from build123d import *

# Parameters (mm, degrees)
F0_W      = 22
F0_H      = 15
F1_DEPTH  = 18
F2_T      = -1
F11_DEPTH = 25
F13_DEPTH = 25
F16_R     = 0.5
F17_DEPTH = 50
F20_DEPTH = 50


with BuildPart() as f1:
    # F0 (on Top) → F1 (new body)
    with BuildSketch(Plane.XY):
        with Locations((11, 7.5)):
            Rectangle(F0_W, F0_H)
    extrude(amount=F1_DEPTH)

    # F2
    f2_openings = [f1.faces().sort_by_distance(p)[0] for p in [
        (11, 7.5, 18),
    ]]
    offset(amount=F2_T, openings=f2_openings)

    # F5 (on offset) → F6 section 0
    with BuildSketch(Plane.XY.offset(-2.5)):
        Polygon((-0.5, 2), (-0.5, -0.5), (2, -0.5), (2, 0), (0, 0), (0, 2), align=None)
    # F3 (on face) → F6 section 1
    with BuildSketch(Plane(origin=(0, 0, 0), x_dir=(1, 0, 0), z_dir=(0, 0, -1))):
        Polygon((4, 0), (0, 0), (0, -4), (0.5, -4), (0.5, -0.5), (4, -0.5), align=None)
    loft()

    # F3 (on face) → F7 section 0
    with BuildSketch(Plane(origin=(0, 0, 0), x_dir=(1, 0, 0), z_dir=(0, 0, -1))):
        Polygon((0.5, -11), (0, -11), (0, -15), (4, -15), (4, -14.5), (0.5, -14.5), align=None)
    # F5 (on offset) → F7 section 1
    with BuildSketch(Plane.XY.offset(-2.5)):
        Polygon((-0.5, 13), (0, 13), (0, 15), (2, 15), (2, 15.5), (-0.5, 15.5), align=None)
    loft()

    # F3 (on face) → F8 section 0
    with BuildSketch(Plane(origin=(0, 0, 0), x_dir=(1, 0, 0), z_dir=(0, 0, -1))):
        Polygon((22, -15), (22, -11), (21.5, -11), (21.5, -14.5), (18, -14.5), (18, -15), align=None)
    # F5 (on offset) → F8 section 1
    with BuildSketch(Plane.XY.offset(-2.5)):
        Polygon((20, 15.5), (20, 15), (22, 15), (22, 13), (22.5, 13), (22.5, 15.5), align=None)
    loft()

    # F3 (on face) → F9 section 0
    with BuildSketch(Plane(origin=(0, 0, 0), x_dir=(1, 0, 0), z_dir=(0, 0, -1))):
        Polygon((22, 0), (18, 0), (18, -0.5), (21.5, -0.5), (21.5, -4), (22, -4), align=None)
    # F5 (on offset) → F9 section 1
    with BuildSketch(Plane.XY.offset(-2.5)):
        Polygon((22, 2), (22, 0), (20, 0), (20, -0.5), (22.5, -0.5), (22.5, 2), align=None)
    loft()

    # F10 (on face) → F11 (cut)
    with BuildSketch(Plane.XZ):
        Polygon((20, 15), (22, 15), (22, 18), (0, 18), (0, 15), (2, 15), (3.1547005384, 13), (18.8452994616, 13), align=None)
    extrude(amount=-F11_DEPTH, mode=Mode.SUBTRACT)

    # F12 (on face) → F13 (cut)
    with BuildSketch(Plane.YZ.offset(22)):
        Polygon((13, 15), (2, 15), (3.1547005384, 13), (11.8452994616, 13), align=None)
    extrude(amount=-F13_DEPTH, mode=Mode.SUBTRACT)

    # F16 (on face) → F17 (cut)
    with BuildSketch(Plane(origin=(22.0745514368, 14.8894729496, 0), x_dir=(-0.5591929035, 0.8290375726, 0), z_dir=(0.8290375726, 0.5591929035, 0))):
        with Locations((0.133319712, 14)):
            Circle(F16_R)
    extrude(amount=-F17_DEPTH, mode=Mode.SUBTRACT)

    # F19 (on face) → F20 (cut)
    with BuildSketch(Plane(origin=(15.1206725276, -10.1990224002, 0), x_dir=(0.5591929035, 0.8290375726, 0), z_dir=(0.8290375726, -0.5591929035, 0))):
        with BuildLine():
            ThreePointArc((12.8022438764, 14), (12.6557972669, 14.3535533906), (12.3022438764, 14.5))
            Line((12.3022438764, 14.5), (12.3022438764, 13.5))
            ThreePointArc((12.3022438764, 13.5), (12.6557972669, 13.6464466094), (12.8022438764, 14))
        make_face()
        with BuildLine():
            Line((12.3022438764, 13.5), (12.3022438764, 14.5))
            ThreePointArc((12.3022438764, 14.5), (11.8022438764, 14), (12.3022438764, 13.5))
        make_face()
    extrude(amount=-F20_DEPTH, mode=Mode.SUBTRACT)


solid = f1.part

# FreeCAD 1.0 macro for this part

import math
import FreeCAD as App
import Part
import Sketcher
Q = App.Units.Quantity


def faces_at(feature, points):
    """Names of the faces that lie closest to the given points."""
    faces = feature.Shape.Faces
    near = lambda p: min(range(len(faces)), key=lambda i: faces[i].distToShape(Part.Vertex(*p))[0])
    return sorted({f"Face{near(p) + 1}" for p in points})


def add_polygon(sketch, points):
    """Adds a closed chain of lines whose ends are joined by coincident constraints."""
    first, n = sketch.GeometryCount, len(points)
    for a, b in zip(points, points[1:] + points[:1]):
        sketch.addGeometry(Part.LineSegment(App.Vector(*a, 0), App.Vector(*b, 0)), False)
    for i in range(n):
        sketch.addConstraint(Sketcher.Constraint("Coincident", first + i, 2, first + (i + 1) % n, 1))

doc = App.newDocument("Part")
params = doc.addObject("Spreadsheet::Sheet", "Params")
for row, (alias, value) in enumerate([
    ("sketch1_width", "22 mm"),
    ("sketch1_height", "15 mm"),
    ("pad1_length", "18 mm"),
    ("thickness_wall", "1 mm"),
    ("sketch2_width", "2 mm"),
    ("sketch2_width2", "2.5 mm"),
    ("sketch3_width", "4 mm"),
    ("sketch3_width2", "0.5 mm"),
    ("sketch4_width", "4 mm"),
    ("sketch4_width2", "0.5 mm"),
    ("sketch5_width", "2 mm"),
    ("sketch5_width2", "0.5 mm"),
    ("sketch6_width", "4 mm"),
    ("sketch6_width2", "0.5 mm"),
    ("sketch7_width", "2 mm"),
    ("sketch7_width2", "0.5 mm"),
    ("sketch8_width", "4 mm"),
    ("sketch8_width2", "3.5 mm"),
    ("sketch9_width", "2 mm"),
    ("sketch9_width2", "2.5 mm"),
    ("sketch10_width", "2 mm"),
    ("sketch10_width2", "22 mm"),
    ("sketch10_height", "3 mm"),
    ("pocket1_length", "25 mm"),
    ("sketch11_width", "11 mm"),
    ("pocket2_length", "25 mm"),
    ("sketch12_diameter", "1 mm"),
    ("pocket3_length", "50 mm"),
    ("sketch13_radius", "0.5 mm"),
    ("pocket4_length", "50 mm"),
], start=1):
    params.set(f"A{row}", alias)
    params.set(f"B{row}", "=" + value)
    params.setAlias(f"B{row}", alias)

body = doc.addObject("PartDesign::Body", "Body")

# Sketch on XY plane
sketch1 = body.newObject("Sketcher::SketchObject", "Sketch")
sketch1.AttachmentSupport = (doc.getObject("XY_Plane"), [""])
sketch1.MapMode = "FlatFace"
add_polygon(sketch1, [(0, 15), (0, 0), (22, 0), (22, 15)])  # lines 0-3
sketch1.addConstraint([
    Sketcher.Constraint("Vertical", 0),
    Sketcher.Constraint("Horizontal", 1),
    Sketcher.Constraint("Vertical", 2),
    Sketcher.Constraint("Horizontal", 3),
    Sketcher.Constraint("Coincident", 0, 2, -1, 1),
    Sketcher.Constraint("DistanceX", 1, 1, 1, 2, Q("22 mm")),
    Sketcher.Constraint("DistanceY", 0, 2, 0, 1, Q("15 mm")),
])
sketch1.setExpression("Constraints[9]", "Params.sketch1_width")
sketch1.setExpression("Constraints[10]", "Params.sketch1_height")
pad1 = body.newObject("PartDesign::Pad", "Pad")
pad1.Profile = sketch1
pad1.setExpression("Length", "Params.pad1_length")
doc.recompute()

thickness = body.newObject("PartDesign::Thickness", "Thickness")
thickness.Base = (pad1, faces_at(pad1, [(11, 7.5, 18)]))
thickness.setExpression("Value", "Params.thickness_wall")
thickness.Reversed = True
thickness.Join = "Arc"

# Sketch on XY plane
sketch2 = body.newObject("Sketcher::SketchObject", "Sketch001")
sketch2.AttachmentSupport = (doc.getObject("XY_Plane"), [""])
sketch2.MapMode = "FlatFace"
sketch2.AttachmentOffset = App.Placement(App.Vector(0, 0, -2.5), App.Rotation())
add_polygon(sketch2, [(-0.5, 2), (-0.5, -0.5), (2, -0.5), (2, 0), (0, 0), (0, 2)])  # lines 0-5
sketch2.addConstraint([
    Sketcher.Constraint("Vertical", 0),
    Sketcher.Constraint("Horizontal", 1),
    Sketcher.Constraint("Vertical", 2),
    Sketcher.Constraint("Horizontal", 3),
    Sketcher.Constraint("Vertical", 4),
    Sketcher.Constraint("Horizontal", 5),
    Sketcher.Constraint("Coincident", 3, 2, -1, 1),
    Sketcher.Constraint("Equal", 1, 0),
    Sketcher.Constraint("Equal", 5, 2),
    Sketcher.Constraint("DistanceX", 3, 2, 3, 1, Q("2 mm")),
    Sketcher.Constraint("DistanceX", 1, 1, 1, 2, Q("2.5 mm")),
])
sketch2.setExpression("Constraints[15]", "Params.sketch2_width")
sketch2.setExpression("Constraints[16]", "Params.sketch2_width2")

# Sketch on XY plane
sketch3 = body.newObject("Sketcher::SketchObject", "Sketch002")
sketch3.AttachmentSupport = (doc.getObject("XY_Plane"), [""])
sketch3.MapMode = "FlatFace"
add_polygon(sketch3, [(4, 0), (0, 0), (0, 4), (0.5, 4), (0.5, 0.5), (4, 0.5)])  # lines 0-5
sketch3.addConstraint([
    Sketcher.Constraint("Horizontal", 0),
    Sketcher.Constraint("Vertical", 1),
    Sketcher.Constraint("Horizontal", 2),
    Sketcher.Constraint("Vertical", 3),
    Sketcher.Constraint("Horizontal", 4),
    Sketcher.Constraint("Vertical", 5),
    Sketcher.Constraint("Coincident", 0, 2, -1, 1),
    Sketcher.Constraint("Equal", 0, 1),
    Sketcher.Constraint("Equal", 4, 3),
    Sketcher.Constraint("DistanceX", 0, 2, 0, 1, Q("4 mm")),
    Sketcher.Constraint("DistanceX", 2, 1, 2, 2, Q("0.5 mm")),
])
sketch3.setExpression("Constraints[15]", "Params.sketch3_width")
sketch3.setExpression("Constraints[16]", "Params.sketch3_width2")

additiveloft = body.newObject("PartDesign::AdditiveLoft", "AdditiveLoft")
additiveloft.Profile = sketch2
additiveloft.Sections = [sketch3]

# Sketch on XY plane
sketch4 = body.newObject("Sketcher::SketchObject", "Sketch003")
sketch4.AttachmentSupport = (doc.getObject("XY_Plane"), [""])
sketch4.MapMode = "FlatFace"
add_polygon(sketch4, [(0.5, 11), (0, 11), (0, 15), (4, 15), (4, 14.5), (0.5, 14.5)])  # lines 0-5
sketch4.addConstraint([
    Sketcher.Constraint("Horizontal", 0),
    Sketcher.Constraint("Vertical", 1),
    Sketcher.Constraint("Horizontal", 2),
    Sketcher.Constraint("Vertical", 3),
    Sketcher.Constraint("Horizontal", 4),
    Sketcher.Constraint("Vertical", 5),
    Sketcher.Constraint("PointOnObject", 0, 2, -2),
    Sketcher.Constraint("Equal", 2, 1),
    Sketcher.Constraint("Equal", 0, 3),
    Sketcher.Constraint("DistanceX", 2, 1, 2, 2, Q("4 mm")),
    Sketcher.Constraint("DistanceX", 0, 2, 0, 1, Q("0.5 mm")),
    Sketcher.Constraint("DistanceY", -1, 1, 0, 2, Q("11 mm")),
])
sketch4.setExpression("Constraints[15]", "Params.sketch4_width")
sketch4.setExpression("Constraints[16]", "Params.sketch4_width2")

# Sketch on XY plane
sketch5 = body.newObject("Sketcher::SketchObject", "Sketch004")
sketch5.AttachmentSupport = (doc.getObject("XY_Plane"), [""])
sketch5.MapMode = "FlatFace"
sketch5.AttachmentOffset = App.Placement(App.Vector(0, 0, -2.5), App.Rotation())
add_polygon(sketch5, [(-0.5, 13), (0, 13), (0, 15), (2, 15), (2, 15.5), (-0.5, 15.5)])  # lines 0-5
sketch5.addConstraint([
    Sketcher.Constraint("Horizontal", 0),
    Sketcher.Constraint("Vertical", 1),
    Sketcher.Constraint("Horizontal", 2),
    Sketcher.Constraint("Vertical", 3),
    Sketcher.Constraint("Horizontal", 4),
    Sketcher.Constraint("Vertical", 5),
    Sketcher.Constraint("PointOnObject", 0, 2, -2),
    Sketcher.Constraint("Equal", 2, 1),
    Sketcher.Constraint("Equal", 0, 3),
    Sketcher.Constraint("DistanceX", 2, 1, 2, 2, Q("2 mm")),
    Sketcher.Constraint("DistanceX", 0, 1, 0, 2, Q("0.5 mm")),
    Sketcher.Constraint("DistanceY", -1, 1, 0, 2, Q("13 mm")),
])
sketch5.setExpression("Constraints[15]", "Params.sketch5_width")
sketch5.setExpression("Constraints[16]", "Params.sketch5_width2")

additiveloft2 = body.newObject("PartDesign::AdditiveLoft", "AdditiveLoft001")
additiveloft2.Profile = sketch4
additiveloft2.Sections = [sketch5]

# Sketch on XY plane
sketch6 = body.newObject("Sketcher::SketchObject", "Sketch005")
sketch6.AttachmentSupport = (doc.getObject("XY_Plane"), [""])
sketch6.MapMode = "FlatFace"
add_polygon(sketch6, [(22, 15), (22, 11), (21.5, 11), (21.5, 14.5), (18, 14.5), (18, 15)])  # lines 0-5
sketch6.addConstraint([
    Sketcher.Constraint("Vertical", 0),
    Sketcher.Constraint("Horizontal", 1),
    Sketcher.Constraint("Vertical", 2),
    Sketcher.Constraint("Horizontal", 3),
    Sketcher.Constraint("Vertical", 4),
    Sketcher.Constraint("Horizontal", 5),
    Sketcher.Constraint("Equal", 5, 0),
    Sketcher.Constraint("Equal", 3, 2),
    Sketcher.Constraint("DistanceX", 5, 1, 5, 2, Q("4 mm")),
    Sketcher.Constraint("DistanceX", 1, 2, 1, 1, Q("0.5 mm")),
    Sketcher.Constraint("DistanceX", -1, 1, 0, 2, Q("22 mm")),
    Sketcher.Constraint("DistanceY", -1, 1, 0, 2, Q("11 mm")),
])
sketch6.setExpression("Constraints[14]", "Params.sketch6_width")
sketch6.setExpression("Constraints[15]", "Params.sketch6_width2")

# Sketch on XY plane
sketch7 = body.newObject("Sketcher::SketchObject", "Sketch006")
sketch7.AttachmentSupport = (doc.getObject("XY_Plane"), [""])
sketch7.MapMode = "FlatFace"
sketch7.AttachmentOffset = App.Placement(App.Vector(0, 0, -2.5), App.Rotation())
add_polygon(sketch7, [(20, 15.5), (20, 15), (22, 15), (22, 13), (22.5, 13), (22.5, 15.5)])  # lines 0-5
sketch7.addConstraint([
    Sketcher.Constraint("Vertical", 0),
    Sketcher.Constraint("Horizontal", 1),
    Sketcher.Constraint("Vertical", 2),
    Sketcher.Constraint("Horizontal", 3),
    Sketcher.Constraint("Vertical", 4),
    Sketcher.Constraint("Horizontal", 5),
    Sketcher.Constraint("Equal", 3, 0),
    Sketcher.Constraint("Equal", 1, 2),
    Sketcher.Constraint("DistanceX", 1, 1, 1, 2, Q("2 mm")),
    Sketcher.Constraint("DistanceX", 3, 1, 3, 2, Q("0.5 mm")),
    Sketcher.Constraint("DistanceX", -1, 1, 0, 2, Q("20 mm")),
    Sketcher.Constraint("DistanceY", -1, 1, 0, 2, Q("15 mm")),
])
sketch7.setExpression("Constraints[14]", "Params.sketch7_width")
sketch7.setExpression("Constraints[15]", "Params.sketch7_width2")

additiveloft3 = body.newObject("PartDesign::AdditiveLoft", "AdditiveLoft002")
additiveloft3.Profile = sketch6
additiveloft3.Sections = [sketch7]

# Sketch on XY plane
sketch8 = body.newObject("Sketcher::SketchObject", "Sketch007")
sketch8.AttachmentSupport = (doc.getObject("XY_Plane"), [""])
sketch8.MapMode = "FlatFace"
add_polygon(sketch8, [(22, 0), (18, 0), (18, 0.5), (21.5, 0.5), (21.5, 4), (22, 4)])  # lines 0-5
sketch8.addConstraint([
    Sketcher.Constraint("Horizontal", 0),
    Sketcher.Constraint("Vertical", 1),
    Sketcher.Constraint("Horizontal", 2),
    Sketcher.Constraint("Vertical", 3),
    Sketcher.Constraint("Horizontal", 4),
    Sketcher.Constraint("Vertical", 5),
    Sketcher.Constraint("PointOnObject", 0, 2, -1),
    Sketcher.Constraint("Equal", 4, 1),
    Sketcher.Constraint("Equal", 2, 3),
    Sketcher.Constraint("DistanceX", 0, 2, 0, 1, Q("4 mm")),
    Sketcher.Constraint("DistanceX", 2, 1, 2, 2, Q("3.5 mm")),
    Sketcher.Constraint("DistanceX", -1, 1, 0, 2, Q("18 mm")),
])
sketch8.setExpression("Constraints[15]", "Params.sketch8_width")
sketch8.setExpression("Constraints[16]", "Params.sketch8_width2")

# Sketch on XY plane
sketch9 = body.newObject("Sketcher::SketchObject", "Sketch008")
sketch9.AttachmentSupport = (doc.getObject("XY_Plane"), [""])
sketch9.MapMode = "FlatFace"
sketch9.AttachmentOffset = App.Placement(App.Vector(0, 0, -2.5), App.Rotation())
add_polygon(sketch9, [(22, 2), (22, 0), (20, 0), (20, -0.5), (22.5, -0.5), (22.5, 2)])  # lines 0-5
sketch9.addConstraint([
    Sketcher.Constraint("Vertical", 0),
    Sketcher.Constraint("Horizontal", 1),
    Sketcher.Constraint("Vertical", 2),
    Sketcher.Constraint("Horizontal", 3),
    Sketcher.Constraint("Vertical", 4),
    Sketcher.Constraint("Horizontal", 5),
    Sketcher.Constraint("PointOnObject", 0, 2, -1),
    Sketcher.Constraint("Equal", 1, 0),
    Sketcher.Constraint("Equal", 5, 2),
    Sketcher.Constraint("DistanceX", 1, 2, 1, 1, Q("2 mm")),
    Sketcher.Constraint("DistanceX", 3, 1, 3, 2, Q("2.5 mm")),
    Sketcher.Constraint("DistanceX", -1, 1, 0, 2, Q("22 mm")),
])
sketch9.setExpression("Constraints[15]", "Params.sketch9_width")
sketch9.setExpression("Constraints[16]", "Params.sketch9_width2")

additiveloft4 = body.newObject("PartDesign::AdditiveLoft", "AdditiveLoft003")
additiveloft4.Profile = sketch8
additiveloft4.Sections = [sketch9]

# Sketch on XZ plane
sketch10 = body.newObject("Sketcher::SketchObject", "Sketch009")
sketch10.AttachmentSupport = (doc.getObject("XZ_Plane"), [""])
sketch10.MapMode = "FlatFace"
add_polygon(sketch10, [(20, 15), (22, 15), (22, 18), (0, 18), (0, 15), (2, 15), (3.2, 13), (18.8, 13)])  # lines 0-7
sketch10.addConstraint([
    Sketcher.Constraint("Horizontal", 0),
    Sketcher.Constraint("Vertical", 1),
    Sketcher.Constraint("Horizontal", 2),
    Sketcher.Constraint("Vertical", 3),
    Sketcher.Constraint("Horizontal", 4),
    Sketcher.Constraint("Horizontal", 6),
    Sketcher.Constraint("PointOnObject", 2, 2, -2),
    Sketcher.Constraint("Horizontal", 0, 2, 3, 2),
    Sketcher.Constraint("Equal", 0, 4),
    Sketcher.Constraint("Equal", 5, 7),
    Sketcher.Constraint("DistanceX", 0, 1, 0, 2, Q("2 mm")),
    Sketcher.Constraint("DistanceX", 2, 2, 2, 1, Q("22 mm")),
    Sketcher.Constraint("DistanceY", 1, 1, 1, 2, Q("3 mm")),
    Sketcher.Constraint("Angle", 5, Q("-60 deg")),
    Sketcher.Constraint("DistanceY", -1, 1, 0, 2, Q("15 mm")),
    Sketcher.Constraint("DistanceY", -1, 1, 5, 2, Q("13 mm")),
])
sketch10.setExpression("Constraints[18]", "Params.sketch10_width")
sketch10.setExpression("Constraints[19]", "Params.sketch10_width2")
sketch10.setExpression("Constraints[20]", "Params.sketch10_height")
pocket1 = body.newObject("PartDesign::Pocket", "Pocket")
pocket1.Profile = sketch10
pocket1.setExpression("Length", "Params.pocket1_length")

# Sketch on YZ plane
sketch11 = body.newObject("Sketcher::SketchObject", "Sketch010")
sketch11.AttachmentSupport = (doc.getObject("YZ_Plane"), [""])
sketch11.MapMode = "FlatFace"
sketch11.AttachmentOffset = App.Placement(App.Vector(0, 0, 22), App.Rotation())
add_polygon(sketch11, [(13, 15), (2, 15), (3.2, 13), (11.8, 13)])  # lines 0-3
sketch11.addConstraint([
    Sketcher.Constraint("Horizontal", 0),
    Sketcher.Constraint("Horizontal", 2),
    Sketcher.Constraint("Equal", 1, 3),
    Sketcher.Constraint("DistanceX", 0, 2, 0, 1, Q("11 mm")),
    Sketcher.Constraint("Angle", 1, Q("-60 deg")),
    Sketcher.Constraint("DistanceX", -1, 1, 0, 2, Q("2 mm")),
    Sketcher.Constraint("DistanceY", -1, 1, 0, 2, Q("15 mm")),
    Sketcher.Constraint("DistanceY", -1, 1, 1, 2, Q("13 mm")),
])
sketch11.setExpression("Constraints[7]", "Params.sketch11_width")
pocket2 = body.newObject("PartDesign::Pocket", "Pocket001")
pocket2.Profile = sketch11
pocket2.setExpression("Length", "Params.pocket2_length")

# Sketch on an angled plane
sketch12 = body.newObject("Sketcher::SketchObject", "Sketch011")
sketch12.Placement = App.Placement(App.Vector(22.074551, 14.889473, 0), App.Rotation(App.Vector(-0.559192903, 0.829037573, 0), App.Vector(0, 0, 1), App.Vector(0.829037573, 0.559192903, 0), "ZXY"))
sketch12.addGeometry(Part.Circle(App.Vector(0.1, 14, 0), App.Vector(0, 0, 1), 0.5), False)
sketch12.addConstraint([
    Sketcher.Constraint("Diameter", 0, Q("1 mm")),
    Sketcher.Constraint("DistanceY", -1, 1, 0, 3, Q("14 mm")),
    Sketcher.Constraint("DistanceX", -1, 1, 0, 3, Q("0.13332 mm")),
])
sketch12.setExpression("Constraints[0]", "Params.sketch12_diameter")
pocket3 = body.newObject("PartDesign::Pocket", "Pocket002")
pocket3.Profile = sketch12
pocket3.setExpression("Length", "Params.pocket3_length")

# Sketch on an angled plane
sketch13 = body.newObject("Sketcher::SketchObject", "Sketch012")
sketch13.Placement = App.Placement(App.Vector(15.120673, -10.199022, 0), App.Rotation(App.Vector(0.559192903, 0.829037573, 0), App.Vector(0, 0, 1), App.Vector(0.829037573, -0.559192903, 0), "ZXY"))
sketch13.addGeometry([
    Part.ArcOfCircle(Part.Circle(App.Vector(12.3, 14, 0), App.Vector(0, 0, 1), 0.5), math.radians(0), math.radians(90)),
    Part.ArcOfCircle(Part.Circle(App.Vector(12.3, 14, 0), App.Vector(0, 0, 1), 0.5), math.radians(90), math.radians(270)),
    Part.ArcOfCircle(Part.Circle(App.Vector(12.3, 14, 0), App.Vector(0, 0, 1), 0.5), math.radians(-90), math.radians(0)),
], False)
sketch13.addConstraint([
    Sketcher.Constraint("Tangent", 0, 2, 1, 1),
    Sketcher.Constraint("Tangent", 1, 2, 2, 1),
    Sketcher.Constraint("Tangent", 2, 2, 0, 1),
    Sketcher.Constraint("Horizontal", 1, 3, 2, 2),
    Sketcher.Constraint("Vertical", 2, 3, 0, 2),
    Sketcher.Constraint("Vertical", 0, 2, 1, 2),
    Sketcher.Constraint("Radius", 0, Q("0.5 mm")),
    Sketcher.Constraint("DistanceY", -1, 1, 0, 3, Q("14 mm")),
    Sketcher.Constraint("DistanceX", -1, 1, 0, 3, Q("12.302244 mm")),
])
sketch13.setExpression("Constraints[6]", "Params.sketch13_radius")
pocket4 = body.newObject("PartDesign::Pocket", "Pocket003")
pocket4.Profile = sketch13
pocket4.setExpression("Length", "Params.pocket4_length")

doc.recompute()
